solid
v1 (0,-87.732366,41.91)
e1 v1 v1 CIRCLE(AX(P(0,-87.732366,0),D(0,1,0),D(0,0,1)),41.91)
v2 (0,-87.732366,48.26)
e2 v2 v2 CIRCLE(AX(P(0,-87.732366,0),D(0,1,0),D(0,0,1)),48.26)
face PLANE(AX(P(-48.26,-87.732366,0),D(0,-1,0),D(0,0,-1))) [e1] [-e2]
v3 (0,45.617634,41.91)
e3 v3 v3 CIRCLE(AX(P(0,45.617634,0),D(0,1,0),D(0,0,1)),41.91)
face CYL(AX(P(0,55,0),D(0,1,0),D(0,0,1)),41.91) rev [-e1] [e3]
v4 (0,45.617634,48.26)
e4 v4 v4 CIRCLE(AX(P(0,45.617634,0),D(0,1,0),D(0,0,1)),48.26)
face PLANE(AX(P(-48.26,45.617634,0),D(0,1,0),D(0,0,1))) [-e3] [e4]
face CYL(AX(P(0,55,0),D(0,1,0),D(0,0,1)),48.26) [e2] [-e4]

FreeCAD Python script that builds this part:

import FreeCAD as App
import Part
import Sketcher

V = App.Vector
Q = App.Units.Quantity


def add_polygon(sketch, points):
    """Adds a closed chain of lines whose ends are joined by coincident constraints."""
    first, n = sketch.GeometryCount, len(points)
    for a, b in zip(points, points[1:] + points[:1]):
        sketch.addGeometry(Part.LineSegment(App.Vector(*a, 0), App.Vector(*b, 0)), False)
    for i in range(n):
        sketch.addConstraint(Sketcher.Constraint("Coincident", first + i, 2, first + (i + 1) % n, 1))

doc = App.newDocument("Part")
body = doc.addObject("PartDesign::Body", "Body")

sketch1 = doc.addObject("Sketcher::SketchObject", "Sketch")
body.addObject(sketch1)
sketch1.AttachmentSupport = (doc.XY_Plane, [""])
sketch1.MapMode = "FlatFace"
add_polygon(sketch1, [(-48, 46), (-48, -88), (-42, -88), (-42, 46)])
sketch1.addConstraint(Sketcher.Constraint("Vertical", 0))
sketch1.addConstraint(Sketcher.Constraint("Horizontal", 1))
sketch1.addConstraint(Sketcher.Constraint("Vertical", 2))
sketch1.addConstraint(Sketcher.Constraint("Horizontal", 3))
sketch1.addConstraint(Sketcher.Constraint("DistanceX", 1, 1, 1, 2, Q("0.25 in")))
sketch1.addConstraint(Sketcher.Constraint("DistanceY", 0, 2, 0, 1, Q("5.25 in")))
sketch1.addConstraint(Sketcher.Constraint("DistanceX", 0, 2, -1, 1, Q("1.9 in")))
sketch1.addConstraint(Sketcher.Constraint("DistanceY", 0, 2, -1, 1, Q("87.732366 mm")))
revolution = doc.addObject("PartDesign::Revolution", "Revolution")
body.addObject(revolution)
revolution.Profile = sketch1
revolution.ReferenceAxis = (sketch1, ["V_Axis"])
revolution.Angle = 360

doc.recompute()
